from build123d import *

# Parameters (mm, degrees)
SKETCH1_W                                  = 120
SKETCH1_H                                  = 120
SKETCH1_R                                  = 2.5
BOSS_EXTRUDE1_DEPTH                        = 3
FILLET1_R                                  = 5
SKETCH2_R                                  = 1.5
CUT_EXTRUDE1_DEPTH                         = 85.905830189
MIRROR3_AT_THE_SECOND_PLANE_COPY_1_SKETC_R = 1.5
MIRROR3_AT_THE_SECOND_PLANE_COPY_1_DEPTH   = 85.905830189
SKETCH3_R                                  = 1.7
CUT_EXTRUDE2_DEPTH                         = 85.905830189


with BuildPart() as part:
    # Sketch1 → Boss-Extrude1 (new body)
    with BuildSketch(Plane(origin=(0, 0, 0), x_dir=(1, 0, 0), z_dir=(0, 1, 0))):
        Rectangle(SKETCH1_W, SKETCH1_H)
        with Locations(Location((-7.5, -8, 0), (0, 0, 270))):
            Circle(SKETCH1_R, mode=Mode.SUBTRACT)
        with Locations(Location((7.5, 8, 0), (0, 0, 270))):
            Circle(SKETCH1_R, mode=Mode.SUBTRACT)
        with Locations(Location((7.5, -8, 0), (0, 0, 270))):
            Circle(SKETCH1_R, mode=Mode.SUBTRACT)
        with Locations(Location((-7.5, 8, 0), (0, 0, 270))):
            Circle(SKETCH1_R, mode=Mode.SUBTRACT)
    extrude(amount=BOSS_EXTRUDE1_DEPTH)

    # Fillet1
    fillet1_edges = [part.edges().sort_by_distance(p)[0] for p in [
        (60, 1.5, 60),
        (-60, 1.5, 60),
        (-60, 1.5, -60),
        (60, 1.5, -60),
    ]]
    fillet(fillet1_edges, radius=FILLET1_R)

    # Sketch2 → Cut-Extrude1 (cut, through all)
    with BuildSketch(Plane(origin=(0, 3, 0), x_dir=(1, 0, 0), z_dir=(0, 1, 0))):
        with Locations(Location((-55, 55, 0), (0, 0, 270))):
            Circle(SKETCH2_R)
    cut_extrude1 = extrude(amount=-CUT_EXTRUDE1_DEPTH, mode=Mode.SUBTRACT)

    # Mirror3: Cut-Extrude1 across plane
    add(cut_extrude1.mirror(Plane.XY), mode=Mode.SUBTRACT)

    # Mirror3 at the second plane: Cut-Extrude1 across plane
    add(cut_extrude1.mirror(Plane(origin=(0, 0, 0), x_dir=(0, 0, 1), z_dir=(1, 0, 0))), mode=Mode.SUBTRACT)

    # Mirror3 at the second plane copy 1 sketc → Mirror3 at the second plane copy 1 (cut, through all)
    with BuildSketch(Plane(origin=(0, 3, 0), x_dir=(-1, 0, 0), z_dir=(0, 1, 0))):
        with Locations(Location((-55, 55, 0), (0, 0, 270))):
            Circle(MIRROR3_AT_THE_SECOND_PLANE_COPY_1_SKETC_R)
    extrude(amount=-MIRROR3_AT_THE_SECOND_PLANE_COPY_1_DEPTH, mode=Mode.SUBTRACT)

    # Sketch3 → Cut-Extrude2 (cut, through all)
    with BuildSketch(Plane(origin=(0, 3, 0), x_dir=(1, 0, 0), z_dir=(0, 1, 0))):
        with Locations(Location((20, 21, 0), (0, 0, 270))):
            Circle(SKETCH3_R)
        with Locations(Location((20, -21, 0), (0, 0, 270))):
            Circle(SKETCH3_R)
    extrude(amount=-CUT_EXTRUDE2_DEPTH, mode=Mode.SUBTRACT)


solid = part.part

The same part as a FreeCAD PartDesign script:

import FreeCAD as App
import Part
import Sketcher
from FreeCAD import Vector
Q = App.Units.Quantity


def edges_at(feature, points):
    """Names of the edges that pass closest to the given points."""
    edges = feature.Shape.Edges
    near = lambda p: min(range(len(edges)), key=lambda i: edges[i].distToShape(Part.Vertex(*p))[0])
    return sorted({f"Edge{near(p) + 1}" for p in points})

doc = App.newDocument("Part")
body = doc.addObject("PartDesign::Body", "Body")

sketch1 = body.newObject("Sketcher::SketchObject", "Sketch")
sketch1.AttachmentSupport = (doc.getObject("XZ_Plane"), [""])
sketch1.MapMode = "FlatFace"
sketch1.addGeometry(Part.LineSegment(Vector(-60, -60, 0), Vector(-60, 60, 0)), False)
sketch1.addGeometry(Part.LineSegment(Vector(-60, 60, 0), Vector(60, 60, 0)), False)
sketch1.addGeometry(Part.LineSegment(Vector(60, 60, 0), Vector(60, -60, 0)), False)
sketch1.addGeometry(Part.LineSegment(Vector(60, -60, 0), Vector(-60, -60, 0)), False)
sketch1.addGeometry(Part.Circle(Vector(-7.5, 8, 0), Vector(0, 0, 1), 2.5), False)
sketch1.addGeometry(Part.Circle(Vector(7.5, 8, 0), Vector(0, 0, 1), 2.5), False)
sketch1.addGeometry(Part.Circle(Vector(-7.5, -8, 0), Vector(0, 0, 1), 2.5), False)
sketch1.addGeometry(Part.Circle(Vector(7.5, -8, 0), Vector(0, 0, 1), 2.5), False)
sketch1.addConstraint(Sketcher.Constraint("Coincident", 0, 2, 1, 1))
sketch1.addConstraint(Sketcher.Constraint("Coincident", 1, 2, 2, 1))
sketch1.addConstraint(Sketcher.Constraint("Coincident", 2, 2, 3, 1))
sketch1.addConstraint(Sketcher.Constraint("Coincident", 3, 2, 0, 1))
sketch1.addConstraint(Sketcher.Constraint("Vertical", 0))
sketch1.addConstraint(Sketcher.Constraint("Horizontal", 1))
sketch1.addConstraint(Sketcher.Constraint("Vertical", 2))
sketch1.addConstraint(Sketcher.Constraint("Horizontal", 3))
sketch1.addConstraint(Sketcher.Constraint("Equal", 4, 5))
sketch1.addConstraint(Sketcher.Constraint("Equal", 5, 6))
sketch1.addConstraint(Sketcher.Constraint("Equal", 6, 7))
sketch1.addConstraint(Sketcher.Constraint("Symmetric", 5, 3, 6, 3, -1, 1))
sketch1.addConstraint(Sketcher.Constraint("Symmetric", 4, 3, 7, 3, -1, 1))
sketch1.addConstraint(Sketcher.Constraint("Symmetric", 0, 2, 2, 2, -1, 1))
sketch1.addConstraint(Sketcher.Constraint("Symmetric", 4, 3, 5, 3, -2))
sketch1.addConstraint(Sketcher.Constraint("Equal", 3, 0))
sketch1.addConstraint(Sketcher.Constraint("Diameter", 4, Q("5 mm")))
sketch1.addConstraint(Sketcher.Constraint("DistanceX", 1, 1, 1, 2, Q("120 mm")))
sketch1.addConstraint(Sketcher.Constraint("DistanceY", -1, 1, 4, 3, Q("8 mm")))
sketch1.addConstraint(Sketcher.Constraint("DistanceX", 4, 3, 5, 3, Q("15 mm")))
pad1 = body.newObject("PartDesign::Pad", "Pad")
pad1.Profile = sketch1
pad1.Length = 3
pad1.Reversed = True
doc.recompute()

fillet = body.newObject("PartDesign::Fillet", "Fillet")
fillet.Base = (pad1, edges_at(pad1, [
    (60, 1.5, 60),
    (-60, 1.5, 60),
    (-60, 1.5, -60),
    (60, 1.5, -60),
]))
fillet.Radius = 5

sketch2 = body.newObject("Sketcher::SketchObject", "Sketch001")
sketch2.AttachmentSupport = (doc.getObject("XZ_Plane"), [""])
sketch2.MapMode = "FlatFace"
sketch2.AttachmentOffset = App.Placement(Vector(0, 0, -3), App.Rotation())
sketch2.addGeometry(Part.Circle(Vector(-55, -55, 0), Vector(0, 0, 1), 1.5), False)
sketch2.addConstraint(Sketcher.Constraint("Diameter", 0, Q("3 mm")))
sketch2.addConstraint(Sketcher.Constraint("DistanceX", 0, 3, -1, 1, Q("55 mm")))
sketch2.addConstraint(Sketcher.Constraint("DistanceY", 0, 3, -1, 1, Q("55 mm")))
pocket1 = body.newObject("PartDesign::Pocket", "Pocket")
pocket1.Profile = sketch2
pocket1.Type = "ThroughAll"
pocket1.Reversed = True
doc.recompute()

mirrored = body.newObject("PartDesign::Mirrored", "Mirrored")
mirrored.Originals = [pocket1]
mirrored.MirrorPlane = (doc.getObject("XY_Plane"), [""])
body.Tip = mirrored
doc.recompute()

mirrored2 = body.newObject("PartDesign::Mirrored", "Mirrored001")
mirrored2.Originals = [pocket1]
mirrored2.MirrorPlane = (doc.getObject("YZ_Plane"), [""])
body.Tip = mirrored2

sketch3 = body.newObject("Sketcher::SketchObject", "Sketch002")
sketch3.AttachmentSupport = (doc.getObject("XZ_Plane"), [""])
sketch3.MapMode = "FlatFace"
sketch3.AttachmentOffset = App.Placement(Vector(0, 0, -3), App.Rotation())
sketch3.addGeometry(Part.Circle(Vector(55, 55, 0), Vector(0, 0, 1), 1.5), False)
sketch3.addConstraint(Sketcher.Constraint("Diameter", 0, Q("3 mm")))
sketch3.addConstraint(Sketcher.Constraint("DistanceX", -1, 1, 0, 3, Q("55 mm")))
sketch3.addConstraint(Sketcher.Constraint("DistanceY", -1, 1, 0, 3, Q("55 mm")))
pocket2 = body.newObject("PartDesign::Pocket", "Pocket001")
pocket2.Profile = sketch3
pocket2.Type = "ThroughAll"
pocket2.Reversed = True

sketch4 = body.newObject("Sketcher::SketchObject", "Sketch003")
sketch4.AttachmentSupport = (doc.getObject("XZ_Plane"), [""])
sketch4.MapMode = "FlatFace"
sketch4.AttachmentOffset = App.Placement(Vector(0, 0, -3), App.Rotation())
sketch4.addGeometry(Part.Circle(Vector(20, -21, 0), Vector(0, 0, 1), 1.7), False)
sketch4.addGeometry(Part.Circle(Vector(20, 21, 0), Vector(0, 0, 1), 1.7), False)
sketch4.addConstraint(Sketcher.Constraint("Equal", 0, 1))
sketch4.addConstraint(Sketcher.Constraint("Symmetric", 0, 3, 1, 3, -1))
sketch4.addConstraint(Sketcher.Constraint("Diameter", 0, Q("3.4 mm")))
sketch4.addConstraint(Sketcher.Constraint("DistanceX", -1, 1, 0, 3, Q("20 mm")))
sketch4.addConstraint(Sketcher.Constraint("DistanceY", 0, 3, -1, 1, Q("21 mm")))
pocket3 = body.newObject("PartDesign::Pocket", "Pocket002")
pocket3.Profile = sketch4
pocket3.Type = "ThroughAll"
pocket3.Reversed = True

doc.recompute()
